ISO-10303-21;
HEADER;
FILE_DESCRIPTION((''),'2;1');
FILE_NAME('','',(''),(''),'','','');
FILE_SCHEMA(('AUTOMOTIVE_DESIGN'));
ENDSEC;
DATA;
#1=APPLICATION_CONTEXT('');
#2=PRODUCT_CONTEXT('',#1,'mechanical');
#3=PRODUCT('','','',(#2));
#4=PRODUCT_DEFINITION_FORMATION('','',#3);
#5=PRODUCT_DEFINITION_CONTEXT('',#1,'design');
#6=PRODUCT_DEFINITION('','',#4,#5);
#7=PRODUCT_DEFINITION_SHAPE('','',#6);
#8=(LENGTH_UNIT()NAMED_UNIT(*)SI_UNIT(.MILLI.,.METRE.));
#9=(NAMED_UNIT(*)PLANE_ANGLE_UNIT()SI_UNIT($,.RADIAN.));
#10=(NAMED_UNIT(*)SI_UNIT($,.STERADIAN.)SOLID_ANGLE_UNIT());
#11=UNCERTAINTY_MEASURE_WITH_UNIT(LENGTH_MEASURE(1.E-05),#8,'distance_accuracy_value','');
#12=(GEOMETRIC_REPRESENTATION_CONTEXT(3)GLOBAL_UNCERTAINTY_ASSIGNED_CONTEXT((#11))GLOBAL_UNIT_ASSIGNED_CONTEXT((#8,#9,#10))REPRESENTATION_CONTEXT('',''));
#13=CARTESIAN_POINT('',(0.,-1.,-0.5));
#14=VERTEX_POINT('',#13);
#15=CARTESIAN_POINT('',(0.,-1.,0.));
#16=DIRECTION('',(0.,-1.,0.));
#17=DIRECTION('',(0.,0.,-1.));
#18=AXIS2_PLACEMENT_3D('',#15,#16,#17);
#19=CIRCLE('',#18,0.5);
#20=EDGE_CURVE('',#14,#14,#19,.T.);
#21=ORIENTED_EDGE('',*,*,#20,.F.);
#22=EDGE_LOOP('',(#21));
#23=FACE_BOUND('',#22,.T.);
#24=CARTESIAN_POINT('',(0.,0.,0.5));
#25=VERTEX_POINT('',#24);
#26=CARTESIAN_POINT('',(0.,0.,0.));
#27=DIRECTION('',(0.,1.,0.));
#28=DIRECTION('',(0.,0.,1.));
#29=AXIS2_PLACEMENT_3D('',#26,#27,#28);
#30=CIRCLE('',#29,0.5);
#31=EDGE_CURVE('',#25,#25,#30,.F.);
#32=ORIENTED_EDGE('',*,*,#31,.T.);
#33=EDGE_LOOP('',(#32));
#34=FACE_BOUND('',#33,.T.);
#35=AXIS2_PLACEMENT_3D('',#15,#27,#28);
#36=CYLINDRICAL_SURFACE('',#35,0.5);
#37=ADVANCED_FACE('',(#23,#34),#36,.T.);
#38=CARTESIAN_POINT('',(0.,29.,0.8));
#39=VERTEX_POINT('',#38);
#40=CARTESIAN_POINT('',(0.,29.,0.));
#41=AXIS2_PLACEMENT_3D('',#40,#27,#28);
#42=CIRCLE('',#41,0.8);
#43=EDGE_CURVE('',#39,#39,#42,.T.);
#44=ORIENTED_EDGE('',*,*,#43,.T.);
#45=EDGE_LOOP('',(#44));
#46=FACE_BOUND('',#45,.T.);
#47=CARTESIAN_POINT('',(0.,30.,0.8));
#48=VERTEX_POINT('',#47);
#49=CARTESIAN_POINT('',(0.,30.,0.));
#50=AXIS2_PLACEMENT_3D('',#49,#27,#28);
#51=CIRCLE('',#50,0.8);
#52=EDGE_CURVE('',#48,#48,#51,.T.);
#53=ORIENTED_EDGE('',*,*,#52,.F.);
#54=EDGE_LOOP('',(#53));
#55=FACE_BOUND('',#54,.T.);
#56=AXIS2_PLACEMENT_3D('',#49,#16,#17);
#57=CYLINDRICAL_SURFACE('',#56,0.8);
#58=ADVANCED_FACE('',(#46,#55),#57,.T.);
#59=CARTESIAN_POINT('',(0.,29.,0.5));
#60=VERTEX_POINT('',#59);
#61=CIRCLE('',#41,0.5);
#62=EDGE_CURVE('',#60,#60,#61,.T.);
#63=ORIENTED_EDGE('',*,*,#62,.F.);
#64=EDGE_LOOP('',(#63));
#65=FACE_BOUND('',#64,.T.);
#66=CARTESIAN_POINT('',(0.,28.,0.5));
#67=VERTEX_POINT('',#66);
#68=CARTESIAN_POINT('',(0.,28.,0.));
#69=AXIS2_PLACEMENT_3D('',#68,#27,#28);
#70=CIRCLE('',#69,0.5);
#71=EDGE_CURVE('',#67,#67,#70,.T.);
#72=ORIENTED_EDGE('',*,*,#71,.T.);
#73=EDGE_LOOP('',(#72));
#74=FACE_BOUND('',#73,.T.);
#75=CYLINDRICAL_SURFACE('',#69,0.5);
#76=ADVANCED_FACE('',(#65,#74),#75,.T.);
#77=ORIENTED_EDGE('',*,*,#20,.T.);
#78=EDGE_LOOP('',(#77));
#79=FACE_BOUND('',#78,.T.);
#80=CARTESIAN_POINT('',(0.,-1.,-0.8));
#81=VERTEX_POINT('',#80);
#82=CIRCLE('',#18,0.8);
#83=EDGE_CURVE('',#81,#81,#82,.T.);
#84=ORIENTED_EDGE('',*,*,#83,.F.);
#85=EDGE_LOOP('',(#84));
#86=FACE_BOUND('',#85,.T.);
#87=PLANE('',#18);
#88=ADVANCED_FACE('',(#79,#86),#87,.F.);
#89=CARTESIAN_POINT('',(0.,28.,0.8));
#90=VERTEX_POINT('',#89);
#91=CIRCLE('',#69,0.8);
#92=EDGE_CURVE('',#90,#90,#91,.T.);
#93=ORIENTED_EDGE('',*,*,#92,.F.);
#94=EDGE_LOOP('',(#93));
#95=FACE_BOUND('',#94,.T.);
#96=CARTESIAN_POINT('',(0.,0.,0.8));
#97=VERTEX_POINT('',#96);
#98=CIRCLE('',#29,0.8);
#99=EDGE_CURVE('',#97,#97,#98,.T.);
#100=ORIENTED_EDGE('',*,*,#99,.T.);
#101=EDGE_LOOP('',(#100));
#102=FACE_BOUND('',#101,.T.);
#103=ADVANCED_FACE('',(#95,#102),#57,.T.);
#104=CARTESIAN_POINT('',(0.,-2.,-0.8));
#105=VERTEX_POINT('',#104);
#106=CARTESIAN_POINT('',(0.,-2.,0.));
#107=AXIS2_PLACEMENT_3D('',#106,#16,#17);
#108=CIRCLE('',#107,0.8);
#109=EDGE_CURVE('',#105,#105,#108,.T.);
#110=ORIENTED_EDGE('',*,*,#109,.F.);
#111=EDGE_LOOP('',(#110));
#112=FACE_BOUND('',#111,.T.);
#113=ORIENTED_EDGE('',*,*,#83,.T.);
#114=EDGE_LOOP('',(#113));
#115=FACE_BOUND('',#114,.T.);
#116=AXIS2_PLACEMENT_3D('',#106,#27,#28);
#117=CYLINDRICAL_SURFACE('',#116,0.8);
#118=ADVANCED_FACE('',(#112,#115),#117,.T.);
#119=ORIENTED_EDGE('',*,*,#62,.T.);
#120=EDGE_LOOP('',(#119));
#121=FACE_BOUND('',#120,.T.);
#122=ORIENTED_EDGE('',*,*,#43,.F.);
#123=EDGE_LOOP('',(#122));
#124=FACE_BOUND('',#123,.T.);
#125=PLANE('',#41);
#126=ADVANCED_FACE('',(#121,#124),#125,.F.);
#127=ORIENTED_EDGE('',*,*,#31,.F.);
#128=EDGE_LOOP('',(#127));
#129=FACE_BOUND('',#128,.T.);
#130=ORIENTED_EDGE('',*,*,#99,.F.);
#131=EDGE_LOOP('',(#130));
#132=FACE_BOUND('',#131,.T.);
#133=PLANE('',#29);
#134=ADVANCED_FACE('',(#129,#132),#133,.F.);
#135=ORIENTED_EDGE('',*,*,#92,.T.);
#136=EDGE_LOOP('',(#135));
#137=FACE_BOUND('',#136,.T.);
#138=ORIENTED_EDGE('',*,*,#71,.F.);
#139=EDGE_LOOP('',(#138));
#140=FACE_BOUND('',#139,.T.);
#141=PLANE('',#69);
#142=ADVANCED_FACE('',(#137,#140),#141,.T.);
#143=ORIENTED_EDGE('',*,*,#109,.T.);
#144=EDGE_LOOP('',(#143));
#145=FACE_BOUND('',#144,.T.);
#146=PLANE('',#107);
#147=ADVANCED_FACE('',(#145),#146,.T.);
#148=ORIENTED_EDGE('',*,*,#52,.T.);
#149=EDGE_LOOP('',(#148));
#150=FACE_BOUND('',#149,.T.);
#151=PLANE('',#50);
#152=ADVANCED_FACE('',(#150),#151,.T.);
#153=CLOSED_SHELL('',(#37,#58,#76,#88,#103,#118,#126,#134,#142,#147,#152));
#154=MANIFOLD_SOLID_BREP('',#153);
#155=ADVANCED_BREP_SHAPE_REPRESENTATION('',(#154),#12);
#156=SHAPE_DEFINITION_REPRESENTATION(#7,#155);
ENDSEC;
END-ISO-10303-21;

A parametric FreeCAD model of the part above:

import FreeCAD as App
import Part
import Sketcher

V = App.Vector
Q = App.Units.Quantity

doc = App.newDocument("Part")
body = doc.addObject("PartDesign::Body", "Body")

sketch1 = doc.addObject("Sketcher::SketchObject", "Sketch")
body.addObject(sketch1)
sketch1.AttachmentSupport = (doc.XZ_Plane, [""])
sketch1.MapMode = "FlatFace"
sketch1.addGeometry(Part.Circle(V(0, 0, 0), V(0, 0, 1), 0.8), False)
sketch1.addConstraint([
    Sketcher.Constraint("Coincident", 0, 3, -1, 1),
    Sketcher.Constraint("Diameter", 0, Q("1.6 mm")),
])
pad1 = doc.addObject("PartDesign::Pad", "Pad")
body.addObject(pad1)
pad1.Profile = sketch1
pad1.Length = 30
pad1.Reversed = True

sketch2 = doc.addObject("Sketcher::SketchObject", "Sketch001")
body.addObject(sketch2)
sketch2.AttachmentSupport = (doc.XZ_Plane, [""])
sketch2.MapMode = "FlatFace"
sketch2.addGeometry(Part.Circle(V(0, 0, 0), V(0, 0, 1), 0.5), False)
sketch2.addConstraint([
    Sketcher.Constraint("Coincident", 0, 3, -1, 1),
    Sketcher.Constraint("Diameter", 0, Q("1 mm")),
])
pad2 = doc.addObject("PartDesign::Pad", "Pad001")
body.addObject(pad2)
pad2.Profile = sketch2
pad2.Length = 1

sketch3 = doc.addObject("Sketcher::SketchObject", "Sketch002")
body.addObject(sketch3)
sketch3.AttachmentSupport = (doc.XZ_Plane, [""])
sketch3.MapMode = "FlatFace"
sketch3.AttachmentOffset = App.Placement(V(0, 0, -29), App.Rotation())
sketch3.addGeometry([
    Part.Circle(V(0, 0, 0), V(0, 0, 1), 0.8),
    Part.Circle(V(0, 0, 0), V(0, 0, 1), 0.5),
], False)
sketch3.addConstraint([
    Sketcher.Constraint("Coincident", 0, 3, -1, 1),
    Sketcher.Constraint("Coincident", 1, 3, -1, 1),
    Sketcher.Constraint("Diameter", 1, Q("1 mm")),
    Sketcher.Constraint("Diameter", 0, Q("1.6 mm")),
])
pocket1 = doc.addObject("PartDesign::Pocket", "Pocket")
body.addObject(pocket1)
pocket1.Profile = sketch3
pocket1.Length = 1
pocket1.Reversed = True

sketch4 = doc.addObject("Sketcher::SketchObject", "Sketch003")
body.addObject(sketch4)
sketch4.AttachmentSupport = (doc.XZ_Plane, [""])
sketch4.MapMode = "FlatFace"
sketch4.AttachmentOffset = App.Placement(V(0, 0, 2), App.Rotation())
sketch4.addGeometry(Part.Circle(V(0, 0, 0), V(0, 0, 1), 0.8), False)
sketch4.addConstraint([
    Sketcher.Constraint("Coincident", 0, 3, -1, 1),
    Sketcher.Constraint("Diameter", 0, Q("1.6 mm")),
])
pad3 = doc.addObject("PartDesign::Pad", "Pad002")
body.addObject(pad3)
pad3.Profile = sketch4
pad3.Length = 1
pad3.Reversed = True

doc.recompute()
